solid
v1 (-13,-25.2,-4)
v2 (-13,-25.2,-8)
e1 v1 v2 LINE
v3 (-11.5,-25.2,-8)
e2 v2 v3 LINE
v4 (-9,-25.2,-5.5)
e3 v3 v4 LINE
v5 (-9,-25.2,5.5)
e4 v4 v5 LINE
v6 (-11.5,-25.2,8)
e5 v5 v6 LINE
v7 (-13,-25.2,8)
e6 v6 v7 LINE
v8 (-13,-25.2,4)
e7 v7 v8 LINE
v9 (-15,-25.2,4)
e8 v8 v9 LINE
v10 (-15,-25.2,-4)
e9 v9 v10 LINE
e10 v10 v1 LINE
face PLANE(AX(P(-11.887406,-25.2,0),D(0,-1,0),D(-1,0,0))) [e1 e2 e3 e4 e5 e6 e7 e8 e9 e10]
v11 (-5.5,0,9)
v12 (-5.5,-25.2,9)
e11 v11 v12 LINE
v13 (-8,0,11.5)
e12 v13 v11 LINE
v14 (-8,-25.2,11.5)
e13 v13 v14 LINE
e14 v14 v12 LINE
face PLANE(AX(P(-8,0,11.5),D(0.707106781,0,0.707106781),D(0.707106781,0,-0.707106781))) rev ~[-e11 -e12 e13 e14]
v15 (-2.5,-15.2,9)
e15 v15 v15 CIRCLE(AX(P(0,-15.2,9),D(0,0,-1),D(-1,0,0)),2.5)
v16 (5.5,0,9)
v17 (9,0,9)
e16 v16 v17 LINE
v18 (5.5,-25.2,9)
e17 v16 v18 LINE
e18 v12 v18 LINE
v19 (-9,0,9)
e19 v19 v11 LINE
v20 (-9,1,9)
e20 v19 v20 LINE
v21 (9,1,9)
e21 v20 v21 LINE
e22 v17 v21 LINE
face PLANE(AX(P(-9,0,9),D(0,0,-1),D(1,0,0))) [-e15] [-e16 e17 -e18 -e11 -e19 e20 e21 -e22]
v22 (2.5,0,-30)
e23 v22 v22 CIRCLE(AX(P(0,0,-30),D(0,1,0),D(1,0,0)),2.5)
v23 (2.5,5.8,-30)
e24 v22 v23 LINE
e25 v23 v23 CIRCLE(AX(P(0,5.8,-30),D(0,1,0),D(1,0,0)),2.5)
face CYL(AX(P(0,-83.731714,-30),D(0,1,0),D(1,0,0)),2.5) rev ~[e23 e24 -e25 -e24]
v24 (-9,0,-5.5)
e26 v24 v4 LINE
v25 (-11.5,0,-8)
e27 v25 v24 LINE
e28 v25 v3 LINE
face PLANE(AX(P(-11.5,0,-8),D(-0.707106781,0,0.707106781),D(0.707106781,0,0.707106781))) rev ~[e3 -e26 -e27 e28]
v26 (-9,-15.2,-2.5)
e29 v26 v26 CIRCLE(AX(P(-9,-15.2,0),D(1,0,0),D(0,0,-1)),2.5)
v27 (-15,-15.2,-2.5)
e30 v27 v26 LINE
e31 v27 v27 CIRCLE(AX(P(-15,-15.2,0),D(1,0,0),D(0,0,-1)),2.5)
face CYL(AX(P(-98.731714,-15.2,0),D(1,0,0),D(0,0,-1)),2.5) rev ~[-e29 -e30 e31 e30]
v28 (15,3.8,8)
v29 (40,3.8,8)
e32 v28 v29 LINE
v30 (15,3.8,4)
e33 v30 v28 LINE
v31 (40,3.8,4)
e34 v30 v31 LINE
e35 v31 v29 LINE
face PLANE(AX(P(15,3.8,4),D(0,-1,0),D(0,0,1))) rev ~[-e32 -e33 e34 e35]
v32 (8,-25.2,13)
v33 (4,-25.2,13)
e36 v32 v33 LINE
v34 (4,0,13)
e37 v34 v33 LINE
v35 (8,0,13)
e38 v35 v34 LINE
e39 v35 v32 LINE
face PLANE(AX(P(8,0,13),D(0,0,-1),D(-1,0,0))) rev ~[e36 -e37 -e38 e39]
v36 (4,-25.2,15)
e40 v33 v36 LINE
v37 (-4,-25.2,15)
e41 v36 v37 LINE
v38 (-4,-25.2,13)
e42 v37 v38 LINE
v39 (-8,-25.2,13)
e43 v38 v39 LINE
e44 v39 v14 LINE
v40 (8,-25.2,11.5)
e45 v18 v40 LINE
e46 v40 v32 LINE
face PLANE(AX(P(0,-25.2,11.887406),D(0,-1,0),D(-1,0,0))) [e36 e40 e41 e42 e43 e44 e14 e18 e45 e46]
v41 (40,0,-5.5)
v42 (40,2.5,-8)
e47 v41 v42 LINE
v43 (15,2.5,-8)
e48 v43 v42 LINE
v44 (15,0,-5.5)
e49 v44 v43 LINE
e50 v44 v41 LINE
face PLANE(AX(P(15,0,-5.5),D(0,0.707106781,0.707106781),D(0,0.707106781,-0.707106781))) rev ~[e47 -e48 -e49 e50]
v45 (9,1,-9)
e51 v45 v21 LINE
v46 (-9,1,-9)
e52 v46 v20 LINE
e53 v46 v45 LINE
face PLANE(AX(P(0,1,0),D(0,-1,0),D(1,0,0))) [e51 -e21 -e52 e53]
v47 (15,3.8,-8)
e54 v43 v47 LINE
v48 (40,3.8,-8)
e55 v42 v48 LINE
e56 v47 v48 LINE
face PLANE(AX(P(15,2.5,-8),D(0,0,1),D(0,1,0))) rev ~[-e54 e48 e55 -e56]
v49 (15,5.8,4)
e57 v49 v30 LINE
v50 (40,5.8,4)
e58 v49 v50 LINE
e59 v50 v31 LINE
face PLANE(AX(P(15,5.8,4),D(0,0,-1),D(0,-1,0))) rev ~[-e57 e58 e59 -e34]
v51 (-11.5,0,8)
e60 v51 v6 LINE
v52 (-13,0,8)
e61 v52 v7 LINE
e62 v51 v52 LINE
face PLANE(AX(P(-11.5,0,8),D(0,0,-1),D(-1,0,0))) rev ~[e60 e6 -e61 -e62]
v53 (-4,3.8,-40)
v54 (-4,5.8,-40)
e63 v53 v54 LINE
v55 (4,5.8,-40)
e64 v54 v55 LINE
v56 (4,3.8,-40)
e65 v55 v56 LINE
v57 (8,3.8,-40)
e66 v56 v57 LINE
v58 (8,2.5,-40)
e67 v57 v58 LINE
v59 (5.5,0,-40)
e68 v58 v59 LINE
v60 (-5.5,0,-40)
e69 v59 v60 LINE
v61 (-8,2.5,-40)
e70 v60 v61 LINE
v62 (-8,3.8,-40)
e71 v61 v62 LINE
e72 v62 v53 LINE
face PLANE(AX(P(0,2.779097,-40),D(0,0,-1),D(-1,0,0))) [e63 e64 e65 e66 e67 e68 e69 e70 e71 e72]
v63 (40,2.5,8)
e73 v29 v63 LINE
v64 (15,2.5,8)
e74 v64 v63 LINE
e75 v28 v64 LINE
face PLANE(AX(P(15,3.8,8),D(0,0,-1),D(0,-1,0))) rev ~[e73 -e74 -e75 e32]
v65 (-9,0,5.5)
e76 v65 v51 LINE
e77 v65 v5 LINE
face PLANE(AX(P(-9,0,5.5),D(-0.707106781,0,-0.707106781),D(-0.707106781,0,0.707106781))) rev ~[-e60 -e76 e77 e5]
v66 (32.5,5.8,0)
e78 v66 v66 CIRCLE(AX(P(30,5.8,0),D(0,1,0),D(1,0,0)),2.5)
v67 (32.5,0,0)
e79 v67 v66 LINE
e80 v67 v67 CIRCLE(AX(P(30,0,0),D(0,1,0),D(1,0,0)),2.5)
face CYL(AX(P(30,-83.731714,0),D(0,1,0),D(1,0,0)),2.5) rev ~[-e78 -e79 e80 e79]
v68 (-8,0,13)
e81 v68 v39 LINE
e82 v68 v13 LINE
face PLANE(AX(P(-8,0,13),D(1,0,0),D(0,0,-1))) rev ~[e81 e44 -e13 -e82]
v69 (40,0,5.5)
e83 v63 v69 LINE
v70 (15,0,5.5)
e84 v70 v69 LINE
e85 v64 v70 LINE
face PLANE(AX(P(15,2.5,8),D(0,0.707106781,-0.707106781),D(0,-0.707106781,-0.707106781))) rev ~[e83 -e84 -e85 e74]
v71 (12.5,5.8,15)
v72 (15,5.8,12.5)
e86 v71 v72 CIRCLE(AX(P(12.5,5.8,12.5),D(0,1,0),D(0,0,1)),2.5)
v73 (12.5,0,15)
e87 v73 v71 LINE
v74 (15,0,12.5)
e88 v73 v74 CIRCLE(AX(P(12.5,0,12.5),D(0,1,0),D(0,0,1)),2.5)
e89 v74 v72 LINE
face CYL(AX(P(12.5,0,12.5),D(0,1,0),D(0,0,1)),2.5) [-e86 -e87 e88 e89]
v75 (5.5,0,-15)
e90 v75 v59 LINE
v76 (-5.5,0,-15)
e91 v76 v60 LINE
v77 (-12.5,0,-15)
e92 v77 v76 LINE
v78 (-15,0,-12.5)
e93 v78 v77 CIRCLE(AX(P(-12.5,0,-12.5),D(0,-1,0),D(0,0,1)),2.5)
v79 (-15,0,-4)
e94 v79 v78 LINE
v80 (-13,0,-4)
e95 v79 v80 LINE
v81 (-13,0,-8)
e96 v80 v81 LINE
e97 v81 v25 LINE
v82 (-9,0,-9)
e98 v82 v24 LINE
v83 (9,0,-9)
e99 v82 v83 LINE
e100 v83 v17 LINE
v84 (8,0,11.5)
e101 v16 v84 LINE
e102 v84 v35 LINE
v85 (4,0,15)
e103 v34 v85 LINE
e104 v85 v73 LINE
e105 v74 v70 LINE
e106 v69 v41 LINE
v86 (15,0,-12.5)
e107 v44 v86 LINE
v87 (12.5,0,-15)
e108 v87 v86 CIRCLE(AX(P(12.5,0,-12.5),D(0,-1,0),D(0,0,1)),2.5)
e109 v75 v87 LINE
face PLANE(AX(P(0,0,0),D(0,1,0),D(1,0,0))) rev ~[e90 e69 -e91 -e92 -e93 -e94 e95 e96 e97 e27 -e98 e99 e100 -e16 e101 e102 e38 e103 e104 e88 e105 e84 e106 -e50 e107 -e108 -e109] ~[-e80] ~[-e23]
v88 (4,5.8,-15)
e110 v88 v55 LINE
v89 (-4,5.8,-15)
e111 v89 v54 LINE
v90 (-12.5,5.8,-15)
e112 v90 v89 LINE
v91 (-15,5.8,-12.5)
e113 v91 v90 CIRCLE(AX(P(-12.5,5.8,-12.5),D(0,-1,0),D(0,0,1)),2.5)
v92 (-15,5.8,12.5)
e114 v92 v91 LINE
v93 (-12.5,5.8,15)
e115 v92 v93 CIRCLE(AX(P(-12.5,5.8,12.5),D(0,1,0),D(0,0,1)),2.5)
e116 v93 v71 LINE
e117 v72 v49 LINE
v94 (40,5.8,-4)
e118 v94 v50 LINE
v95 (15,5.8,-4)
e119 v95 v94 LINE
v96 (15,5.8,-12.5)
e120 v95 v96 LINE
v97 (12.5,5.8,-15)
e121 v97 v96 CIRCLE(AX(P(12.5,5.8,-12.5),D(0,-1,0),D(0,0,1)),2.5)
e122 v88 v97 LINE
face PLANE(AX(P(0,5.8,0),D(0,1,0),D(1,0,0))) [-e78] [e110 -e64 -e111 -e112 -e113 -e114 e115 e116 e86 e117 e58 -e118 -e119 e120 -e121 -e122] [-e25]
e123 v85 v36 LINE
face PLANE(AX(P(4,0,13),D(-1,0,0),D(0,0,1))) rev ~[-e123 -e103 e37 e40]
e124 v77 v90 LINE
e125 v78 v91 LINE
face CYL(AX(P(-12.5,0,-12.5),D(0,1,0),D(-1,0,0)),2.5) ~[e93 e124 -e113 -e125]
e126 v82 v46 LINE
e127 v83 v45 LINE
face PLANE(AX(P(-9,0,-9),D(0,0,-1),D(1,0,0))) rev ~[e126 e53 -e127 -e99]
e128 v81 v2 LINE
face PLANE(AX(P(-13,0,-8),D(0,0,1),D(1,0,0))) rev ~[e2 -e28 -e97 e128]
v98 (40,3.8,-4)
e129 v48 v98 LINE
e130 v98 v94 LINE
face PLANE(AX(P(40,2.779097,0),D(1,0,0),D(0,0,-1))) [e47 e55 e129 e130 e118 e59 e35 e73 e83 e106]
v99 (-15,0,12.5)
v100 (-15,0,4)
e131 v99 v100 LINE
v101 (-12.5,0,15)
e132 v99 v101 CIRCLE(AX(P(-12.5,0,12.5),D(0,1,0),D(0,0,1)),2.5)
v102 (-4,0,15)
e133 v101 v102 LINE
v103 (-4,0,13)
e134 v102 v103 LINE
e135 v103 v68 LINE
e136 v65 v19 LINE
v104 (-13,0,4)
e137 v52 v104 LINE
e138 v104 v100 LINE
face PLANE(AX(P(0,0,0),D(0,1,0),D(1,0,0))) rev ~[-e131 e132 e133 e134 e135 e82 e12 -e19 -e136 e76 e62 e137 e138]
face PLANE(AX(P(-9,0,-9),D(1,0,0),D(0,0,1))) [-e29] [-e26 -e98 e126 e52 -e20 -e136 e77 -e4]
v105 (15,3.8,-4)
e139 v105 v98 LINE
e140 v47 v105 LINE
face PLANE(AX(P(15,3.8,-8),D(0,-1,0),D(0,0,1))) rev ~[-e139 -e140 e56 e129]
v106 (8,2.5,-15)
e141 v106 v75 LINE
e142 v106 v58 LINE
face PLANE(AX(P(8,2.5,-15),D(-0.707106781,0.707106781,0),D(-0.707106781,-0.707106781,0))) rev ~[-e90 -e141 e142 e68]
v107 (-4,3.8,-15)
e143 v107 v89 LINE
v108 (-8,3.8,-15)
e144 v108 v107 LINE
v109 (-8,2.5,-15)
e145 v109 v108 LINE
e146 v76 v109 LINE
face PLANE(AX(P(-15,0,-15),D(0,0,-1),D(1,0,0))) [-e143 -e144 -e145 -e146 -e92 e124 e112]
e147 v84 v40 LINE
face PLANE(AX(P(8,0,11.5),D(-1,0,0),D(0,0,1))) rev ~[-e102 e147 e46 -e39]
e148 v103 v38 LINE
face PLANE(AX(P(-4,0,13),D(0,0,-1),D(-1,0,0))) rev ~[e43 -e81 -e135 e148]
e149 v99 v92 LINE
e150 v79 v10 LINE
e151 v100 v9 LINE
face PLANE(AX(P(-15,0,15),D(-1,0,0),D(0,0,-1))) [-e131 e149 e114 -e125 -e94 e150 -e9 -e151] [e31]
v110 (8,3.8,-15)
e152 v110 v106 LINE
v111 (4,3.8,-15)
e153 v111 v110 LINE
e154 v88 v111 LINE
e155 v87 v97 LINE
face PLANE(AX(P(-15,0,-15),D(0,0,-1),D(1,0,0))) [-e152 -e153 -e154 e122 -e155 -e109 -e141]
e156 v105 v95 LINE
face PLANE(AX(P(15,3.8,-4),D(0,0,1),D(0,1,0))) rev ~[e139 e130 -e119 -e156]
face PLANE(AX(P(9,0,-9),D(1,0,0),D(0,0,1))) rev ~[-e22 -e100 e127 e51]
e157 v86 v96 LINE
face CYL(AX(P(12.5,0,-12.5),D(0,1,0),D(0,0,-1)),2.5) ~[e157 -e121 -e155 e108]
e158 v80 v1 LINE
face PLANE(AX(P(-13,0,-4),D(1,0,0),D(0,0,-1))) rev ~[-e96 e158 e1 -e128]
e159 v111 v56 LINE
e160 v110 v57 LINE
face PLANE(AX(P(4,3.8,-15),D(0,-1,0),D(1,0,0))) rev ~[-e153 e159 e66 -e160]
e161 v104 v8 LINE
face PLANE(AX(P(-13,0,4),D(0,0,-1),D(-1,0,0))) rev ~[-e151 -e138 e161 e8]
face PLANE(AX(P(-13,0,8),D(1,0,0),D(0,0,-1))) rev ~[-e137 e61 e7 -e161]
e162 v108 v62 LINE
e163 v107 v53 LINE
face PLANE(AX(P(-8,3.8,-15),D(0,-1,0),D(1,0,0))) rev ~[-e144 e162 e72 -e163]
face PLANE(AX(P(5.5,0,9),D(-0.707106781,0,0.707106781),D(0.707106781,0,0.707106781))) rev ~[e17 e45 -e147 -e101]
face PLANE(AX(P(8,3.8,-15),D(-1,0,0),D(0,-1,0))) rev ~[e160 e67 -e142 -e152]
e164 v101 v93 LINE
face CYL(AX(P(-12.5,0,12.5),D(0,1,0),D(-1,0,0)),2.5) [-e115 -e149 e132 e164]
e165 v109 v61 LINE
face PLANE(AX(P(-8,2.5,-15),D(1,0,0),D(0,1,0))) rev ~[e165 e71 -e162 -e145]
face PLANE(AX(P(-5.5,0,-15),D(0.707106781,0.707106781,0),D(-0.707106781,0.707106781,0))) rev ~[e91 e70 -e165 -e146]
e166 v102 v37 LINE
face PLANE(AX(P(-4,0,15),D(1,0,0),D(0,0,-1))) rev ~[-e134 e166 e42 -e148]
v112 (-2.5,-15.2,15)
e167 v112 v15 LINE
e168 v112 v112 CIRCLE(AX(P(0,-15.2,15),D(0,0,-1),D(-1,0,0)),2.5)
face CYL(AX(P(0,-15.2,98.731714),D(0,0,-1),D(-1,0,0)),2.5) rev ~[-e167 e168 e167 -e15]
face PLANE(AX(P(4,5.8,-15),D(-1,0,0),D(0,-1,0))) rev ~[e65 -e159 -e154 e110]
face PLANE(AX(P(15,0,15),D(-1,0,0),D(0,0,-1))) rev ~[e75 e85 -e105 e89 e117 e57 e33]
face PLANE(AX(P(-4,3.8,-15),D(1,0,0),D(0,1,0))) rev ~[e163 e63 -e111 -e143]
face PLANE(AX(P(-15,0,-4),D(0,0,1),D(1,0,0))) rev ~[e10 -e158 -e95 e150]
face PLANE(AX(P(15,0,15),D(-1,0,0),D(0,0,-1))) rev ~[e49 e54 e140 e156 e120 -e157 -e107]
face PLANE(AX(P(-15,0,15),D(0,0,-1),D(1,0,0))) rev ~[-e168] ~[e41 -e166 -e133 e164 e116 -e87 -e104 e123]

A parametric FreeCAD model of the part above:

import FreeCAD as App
import Part
import Sketcher
from FreeCAD import Vector


def edges_at(feature, points):
    """Names of the edges that pass closest to the given points."""
    edges = feature.Shape.Edges
    near = lambda p: min(range(len(edges)), key=lambda i: edges[i].distToShape(Part.Vertex(*p))[0])
    return sorted({f"Edge{near(p) + 1}" for p in points})


def add_polygon(sketch, points):
    """Adds a closed chain of lines whose ends are joined by coincident constraints."""
    first, n = sketch.GeometryCount, len(points)
    for a, b in zip(points, points[1:] + points[:1]):
        sketch.addGeometry(Part.LineSegment(App.Vector(*a, 0), App.Vector(*b, 0)), False)
    for i in range(n):
        sketch.addConstraint(Sketcher.Constraint("Coincident", first + i, 2, first + (i + 1) % n, 1))

doc = App.newDocument("Part")
params = doc.addObject("Spreadsheet::Sheet", "Params")
for row, (alias, value) in enumerate([
    ("sketch1_width", "30 mm"),
    ("pad1_length", "5.8 mm"),
    ("sketch2_width", "4 mm"),
    ("sketch2_width2", "11 mm"),
    ("sketch2_width3", "8 mm"),
    ("sketch2_width4", "2 mm"),
    ("sketch2_width5", "1.5 mm"),
    ("pad2_length", "25.2 mm"),
    ("sketch3_width", "18 mm"),
    ("pocket1_length", "1 mm"),
    ("sketch4_width", "11 mm"),
    ("sketch4_width2", "4 mm"),
    ("sketch4_width3", "8 mm"),
    ("sketch4_height", "2 mm"),
    ("sketch4_height2", "1.3 mm"),
    ("pad3_length", "25 mm"),
    ("sketch5_diameter", "5 mm"),
    ("hole_diameter", "5 mm"),
    ("sketch6_diameter", "5 mm"),
    ("hole2_diameter", "5 mm"),
    ("sketch7_diameter", "5 mm"),
    ("hole3_diameter", "5 mm"),
    ("fillet_radius", "2.5 mm"),
], start=1):
    params.set(f"A{row}", alias)
    params.set(f"B{row}", "=" + value)
    params.setAlias(f"B{row}", alias)

body = doc.addObject("PartDesign::Body", "Body")

# Sketch on XZ plane
sketch1 = body.newObject("Sketcher::SketchObject", "Sketch")
sketch1.AttachmentSupport = (doc.getObject("XZ_Plane"), [""])
sketch1.MapMode = "FlatFace"
add_polygon(sketch1, [(-15, -15), (-15, 15), (15, 15), (15, -15)])  # lines 0-3
sketch1.addConstraint(Sketcher.Constraint("Vertical", 0))
sketch1.addConstraint(Sketcher.Constraint("Horizontal", 1))
sketch1.addConstraint(Sketcher.Constraint("Vertical", 2))
sketch1.addConstraint(Sketcher.Constraint("Horizontal", 3))
sketch1.addConstraint(Sketcher.Constraint("Symmetric", 0, 2, 2, 2, -1, 1))
sketch1.addConstraint(Sketcher.Constraint("Equal", 3, 0))
sketch1.addConstraint(Sketcher.Constraint("DistanceX", 1, 1, 1, 2, 30.0))
sketch1.setExpression("Constraints[10]", "Params.sketch1_width")
pad1 = body.newObject("PartDesign::Pad", "Pad")
pad1.Profile = sketch1
pad1.setExpression("Length", "Params.pad1_length")
pad1.Reversed = True

# Sketch on XZ plane
sketch2 = body.newObject("Sketcher::SketchObject", "Sketch001")
sketch2.AttachmentSupport = (doc.getObject("XZ_Plane"), [""])
sketch2.MapMode = "FlatFace"
add_polygon(sketch2, [(-4, 15), (-4, 13), (-8, 13), (-8, 11.5), (-5.5, 9), (5.5, 9), (8, 11.5), (8, 13), (4, 13), (4, 15)])  # lines 0-9
add_polygon(sketch2, [(-15, -4), (-13, -4), (-13, -8), (-11.5, -8), (-9, -5.5), (-9, 5.5), (-11.5, 8), (-13, 8), (-13, 4), (-15, 4)])  # lines 10-19
sketch2.addConstraint(Sketcher.Constraint("Vertical", 0))
sketch2.addConstraint(Sketcher.Constraint("Horizontal", 1))
sketch2.addConstraint(Sketcher.Constraint("Vertical", 2))
sketch2.addConstraint(Sketcher.Constraint("Horizontal", 4))
sketch2.addConstraint(Sketcher.Constraint("Vertical", 6))
sketch2.addConstraint(Sketcher.Constraint("Horizontal", 7))
sketch2.addConstraint(Sketcher.Constraint("Vertical", 8))
sketch2.addConstraint(Sketcher.Constraint("Horizontal", 9))
sketch2.addConstraint(Sketcher.Constraint("Horizontal", 10))
sketch2.addConstraint(Sketcher.Constraint("Vertical", 11))
sketch2.addConstraint(Sketcher.Constraint("Horizontal", 12))
sketch2.addConstraint(Sketcher.Constraint("Vertical", 14))
sketch2.addConstraint(Sketcher.Constraint("Horizontal", 16))
sketch2.addConstraint(Sketcher.Constraint("Vertical", 17))
sketch2.addConstraint(Sketcher.Constraint("Horizontal", 18))
sketch2.addConstraint(Sketcher.Constraint("Vertical", 19))
sketch2.addConstraint(Sketcher.Constraint("Symmetric", 2, 2, 5, 2, -2))
sketch2.addConstraint(Sketcher.Constraint("Symmetric", 0, 2, 7, 2, -2))
sketch2.addConstraint(Sketcher.Constraint("Symmetric", 12, 2, 15, 2, -1))
sketch2.addConstraint(Sketcher.Constraint("Symmetric", 10, 2, 17, 2, -1))
sketch2.addConstraint(Sketcher.Constraint("Perpendicular", 3, 5))
sketch2.addConstraint(Sketcher.Constraint("Parallel", 5, 13))
sketch2.addConstraint(Sketcher.Constraint("Perpendicular", 13, 15))
sketch2.addConstraint(Sketcher.Constraint("Equal", 18, 0))
sketch2.addConstraint(Sketcher.Constraint("Equal", 16, 2))
sketch2.addConstraint(Sketcher.Constraint("Equal", 7, 11))
sketch2.addConstraint(Sketcher.Constraint("Equal", 4, 14))
sketch2.addConstraint(Sketcher.Constraint("Equal", 9, 19))
sketch2.addConstraint(Sketcher.Constraint("Equal", 3, 5))
sketch2.addConstraint(Sketcher.Constraint("DistanceX", 1, 2, 1, 1, 4.0))
sketch2.addConstraint(Sketcher.Constraint("DistanceX", 4, 1, 4, 2, 11.0))
sketch2.addConstraint(Sketcher.Constraint("DistanceX", 9, 2, 9, 1, 8.0))
sketch2.addConstraint(Sketcher.Constraint("DistanceX", 10, 1, 10, 2, 2.0))
sketch2.addConstraint(Sketcher.Constraint("DistanceX", 12, 1, 12, 2, 1.5))
sketch2.addConstraint(Sketcher.Constraint("DistanceY", -1, 1, 0, 2, 13.0))
sketch2.addConstraint(Sketcher.Constraint("DistanceX", 10, 2, -1, 1, 13.0))
sketch2.setExpression("Constraints[49]", "Params.sketch2_width")
sketch2.setExpression("Constraints[50]", "Params.sketch2_width2")
sketch2.setExpression("Constraints[51]", "Params.sketch2_width3")
sketch2.setExpression("Constraints[52]", "Params.sketch2_width4")
sketch2.setExpression("Constraints[53]", "Params.sketch2_width5")
pad2 = body.newObject("PartDesign::Pad", "Pad001")
pad2.Profile = sketch2
pad2.setExpression("Length", "Params.pad2_length")

# Sketch on XZ plane
sketch3 = body.newObject("Sketcher::SketchObject", "Sketch002")
sketch3.AttachmentSupport = (doc.getObject("XZ_Plane"), [""])
sketch3.MapMode = "FlatFace"
add_polygon(sketch3, [(-9, 9), (-9, -9), (9, -9), (9, 9)])  # lines 0-3
sketch3.addConstraint(Sketcher.Constraint("Vertical", 0))
sketch3.addConstraint(Sketcher.Constraint("Horizontal", 1))
sketch3.addConstraint(Sketcher.Constraint("Vertical", 2))
sketch3.addConstraint(Sketcher.Constraint("Horizontal", 3))
sketch3.addConstraint(Sketcher.Constraint("Symmetric", 0, 2, 2, 2, -1, 1))
sketch3.addConstraint(Sketcher.Constraint("Equal", 3, 0))
sketch3.addConstraint(Sketcher.Constraint("DistanceX", 1, 1, 1, 2, 18.0))
sketch3.setExpression("Constraints[10]", "Params.sketch3_width")
pocket1 = body.newObject("PartDesign::Pocket", "Pocket")
pocket1.Profile = sketch3
pocket1.setExpression("Length", "Params.pocket1_length")

# Sketch on XY plane
sketch4 = body.newObject("Sketcher::SketchObject", "Sketch003")
sketch4.AttachmentSupport = (doc.getObject("XY_Plane"), [""])
sketch4.MapMode = "FlatFace"
sketch4.AttachmentOffset = App.Placement(Vector(0, 0, -15), App.Rotation())
add_polygon(sketch4, [(5.5, 0), (-5.5, 0), (-8, 2.5), (-8, 3.8), (-4, 3.8), (-4, 5.8), (4, 5.8), (4, 3.8), (8, 3.8), (8, 2.5)])  # lines 0-9
sketch4.addConstraint(Sketcher.Constraint("Horizontal", 0))
sketch4.addConstraint(Sketcher.Constraint("Vertical", 2))
sketch4.addConstraint(Sketcher.Constraint("Horizontal", 3))
sketch4.addConstraint(Sketcher.Constraint("Vertical", 4))
sketch4.addConstraint(Sketcher.Constraint("Horizontal", 5))
sketch4.addConstraint(Sketcher.Constraint("Vertical", 6))
sketch4.addConstraint(Sketcher.Constraint("Horizontal", 7))
sketch4.addConstraint(Sketcher.Constraint("Vertical", 8))
sketch4.addConstraint(Sketcher.Constraint("Symmetric", 0, 2, 9, 2, -1, 1))
sketch4.addConstraint(Sketcher.Constraint("Symmetric", 3, 2, 6, 2, -2))
sketch4.addConstraint(Sketcher.Constraint("Symmetric", 1, 2, 8, 2, -2))
sketch4.addConstraint(Sketcher.Constraint("Perpendicular", 1, 9))
sketch4.addConstraint(Sketcher.Constraint("DistanceX", 0, 2, 0, 1, 11.0))
sketch4.addConstraint(Sketcher.Constraint("DistanceX", 3, 1, 3, 2, 4.0))
sketch4.addConstraint(Sketcher.Constraint("DistanceX", 5, 1, 5, 2, 8.0))
sketch4.addConstraint(Sketcher.Constraint("DistanceY", 4, 1, 4, 2, 2.0))
sketch4.addConstraint(Sketcher.Constraint("DistanceY", 2, 1, 2, 2, 1.3))
sketch4.setExpression("Constraints[22]", "Params.sketch4_width")
sketch4.setExpression("Constraints[23]", "Params.sketch4_width2")
sketch4.setExpression("Constraints[24]", "Params.sketch4_width3")
sketch4.setExpression("Constraints[25]", "Params.sketch4_height")
sketch4.setExpression("Constraints[26]", "Params.sketch4_height2")
pad3 = body.newObject("PartDesign::Pad", "Pad002")
pad3.Profile = sketch4
pad3.setExpression("Length", "Params.pad3_length")
pad3.Reversed = True
doc.recompute()

polarpattern = body.newObject("PartDesign::PolarPattern", "PolarPattern")
polarpattern.Originals = [pad3]
polarpattern.Axis = (doc.getObject("Y_Axis"), [""])
polarpattern.Angle = 90
polarpattern.Occurrences = 2
polarpattern.Reversed = True
body.Tip = polarpattern

# Sketch on XZ plane
sketch5 = body.newObject("Sketcher::SketchObject", "Sketch004")
sketch5.AttachmentSupport = (doc.getObject("XZ_Plane"), [""])
sketch5.MapMode = "FlatFace"
sketch5.addGeometry(Part.Circle(Vector(30, 0, 0), Vector(0, 0, 1), 2.5), False)
sketch5.addGeometry(Part.Circle(Vector(0, -30, 0), Vector(0, 0, 1), 2.5), False)
sketch5.addConstraint(Sketcher.Constraint("Equal", 0, 1))
sketch5.addConstraint(Sketcher.Constraint("PointOnObject", 0, 3, -1))
sketch5.addConstraint(Sketcher.Constraint("PointOnObject", 1, 3, -2))
sketch5.addConstraint(Sketcher.Constraint("Diameter", 0, 5.0))
sketch5.addConstraint(Sketcher.Constraint("DistanceX", -1, 1, 0, 3, 30.0))
sketch5.addConstraint(Sketcher.Constraint("DistanceY", 1, 3, -1, 1, 30.0))
sketch5.setExpression("Constraints[3]", "Params.sketch5_diameter")
doc.recompute()
hole = body.newObject("PartDesign::Hole", "Hole")
hole.Profile = sketch5
hole.ThreadType = "None"
hole.setExpression("Diameter", "Params.hole_diameter")
hole.DepthType = "ThroughAll"

# Sketch on YZ plane
sketch6 = body.newObject("Sketcher::SketchObject", "Sketch005")
sketch6.AttachmentSupport = (doc.getObject("YZ_Plane"), [""])
sketch6.MapMode = "FlatFace"
sketch6.AttachmentOffset = App.Placement(Vector(0, 0, -15), App.Rotation())
sketch6.addGeometry(Part.Circle(Vector(-15.2, 0, 0), Vector(0, 0, 1), 2.5), False)
sketch6.addConstraint(Sketcher.Constraint("PointOnObject", 0, 3, -1))
sketch6.addConstraint(Sketcher.Constraint("Diameter", 0, 5.0))
sketch6.addConstraint(Sketcher.Constraint("DistanceX", 0, 3, -1, 1, 15.2))
sketch6.setExpression("Constraints[1]", "Params.sketch6_diameter")
doc.recompute()
hole2 = body.newObject("PartDesign::Hole", "Hole001")
hole2.Profile = sketch6
hole2.ThreadType = "None"
hole2.setExpression("Diameter", "Params.hole2_diameter")
hole2.DepthType = "ThroughAll"
hole2.Reversed = True

# Sketch on XY plane
sketch7 = body.newObject("Sketcher::SketchObject", "Sketch006")
sketch7.AttachmentSupport = (doc.getObject("XY_Plane"), [""])
sketch7.MapMode = "FlatFace"
sketch7.AttachmentOffset = App.Placement(Vector(0, 0, 15), App.Rotation())
sketch7.addGeometry(Part.Circle(Vector(0, -15.2, 0), Vector(0, 0, 1), 2.5), False)
sketch7.addConstraint(Sketcher.Constraint("PointOnObject", 0, 3, -2))
sketch7.addConstraint(Sketcher.Constraint("Diameter", 0, 5.0))
sketch7.addConstraint(Sketcher.Constraint("DistanceY", 0, 3, -1, 1, 15.2))
sketch7.setExpression("Constraints[1]", "Params.sketch7_diameter")
doc.recompute()
hole3 = body.newObject("PartDesign::Hole", "Hole002")
hole3.Profile = sketch7
hole3.ThreadType = "None"
hole3.setExpression("Diameter", "Params.hole3_diameter")
hole3.DepthType = "ThroughAll"
doc.recompute()

fillet = body.newObject("PartDesign::Fillet", "Fillet")
fillet.Base = (hole3, edges_at(hole3, [
    (15, 2.9, 15),
    (-15, 2.9, 15),
    (-15, 2.9, -15),
    (15, 2.9, -15),
]))
fillet.setExpression("Radius", "Params.fillet_radius")

doc.recompute()
